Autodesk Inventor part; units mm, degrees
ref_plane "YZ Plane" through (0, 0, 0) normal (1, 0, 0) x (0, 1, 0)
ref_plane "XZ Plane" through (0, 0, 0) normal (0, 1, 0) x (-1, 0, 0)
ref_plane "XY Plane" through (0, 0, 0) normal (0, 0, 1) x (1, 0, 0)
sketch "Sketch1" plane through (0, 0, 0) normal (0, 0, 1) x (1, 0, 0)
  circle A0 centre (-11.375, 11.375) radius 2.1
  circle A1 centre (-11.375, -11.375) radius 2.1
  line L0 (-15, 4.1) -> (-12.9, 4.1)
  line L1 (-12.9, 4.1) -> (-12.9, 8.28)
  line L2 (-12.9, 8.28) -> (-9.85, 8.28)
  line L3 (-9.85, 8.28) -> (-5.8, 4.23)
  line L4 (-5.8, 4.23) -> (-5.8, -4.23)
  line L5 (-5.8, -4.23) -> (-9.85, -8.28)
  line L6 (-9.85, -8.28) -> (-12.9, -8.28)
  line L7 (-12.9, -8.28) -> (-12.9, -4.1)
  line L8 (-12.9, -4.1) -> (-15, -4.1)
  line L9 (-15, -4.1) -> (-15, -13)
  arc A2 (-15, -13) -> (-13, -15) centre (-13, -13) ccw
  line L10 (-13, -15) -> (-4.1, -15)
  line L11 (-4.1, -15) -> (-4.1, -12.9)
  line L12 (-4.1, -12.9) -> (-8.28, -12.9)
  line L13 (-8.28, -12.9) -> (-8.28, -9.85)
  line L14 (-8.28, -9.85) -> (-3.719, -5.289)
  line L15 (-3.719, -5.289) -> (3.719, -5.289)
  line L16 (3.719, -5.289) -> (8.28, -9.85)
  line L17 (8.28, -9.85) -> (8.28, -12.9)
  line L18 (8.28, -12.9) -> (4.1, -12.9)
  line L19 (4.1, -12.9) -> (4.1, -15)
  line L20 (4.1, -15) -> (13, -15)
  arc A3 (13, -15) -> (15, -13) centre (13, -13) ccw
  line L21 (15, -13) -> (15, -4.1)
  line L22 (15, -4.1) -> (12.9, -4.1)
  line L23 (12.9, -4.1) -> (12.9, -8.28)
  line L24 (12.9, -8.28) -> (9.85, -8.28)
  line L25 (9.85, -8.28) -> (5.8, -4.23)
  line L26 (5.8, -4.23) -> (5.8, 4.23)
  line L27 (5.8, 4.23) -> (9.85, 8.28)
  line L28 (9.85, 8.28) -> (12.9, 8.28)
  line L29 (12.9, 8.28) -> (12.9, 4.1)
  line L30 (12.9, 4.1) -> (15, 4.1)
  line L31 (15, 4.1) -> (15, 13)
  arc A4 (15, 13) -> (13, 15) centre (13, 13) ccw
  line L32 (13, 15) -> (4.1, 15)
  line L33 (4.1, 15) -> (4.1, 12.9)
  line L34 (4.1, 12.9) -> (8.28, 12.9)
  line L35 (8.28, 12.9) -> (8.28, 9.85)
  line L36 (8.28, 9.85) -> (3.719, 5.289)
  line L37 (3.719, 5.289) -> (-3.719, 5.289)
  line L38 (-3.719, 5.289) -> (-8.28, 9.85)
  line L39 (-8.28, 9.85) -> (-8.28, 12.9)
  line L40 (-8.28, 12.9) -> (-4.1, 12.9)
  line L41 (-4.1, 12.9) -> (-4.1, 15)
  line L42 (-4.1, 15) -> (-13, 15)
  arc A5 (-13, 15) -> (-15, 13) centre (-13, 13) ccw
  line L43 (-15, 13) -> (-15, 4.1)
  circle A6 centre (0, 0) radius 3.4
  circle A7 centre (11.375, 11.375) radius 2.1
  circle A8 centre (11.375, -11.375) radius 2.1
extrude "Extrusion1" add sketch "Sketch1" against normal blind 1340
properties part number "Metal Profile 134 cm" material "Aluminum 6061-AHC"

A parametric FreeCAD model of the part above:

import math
import FreeCAD as App
import Part
import Sketcher

doc = App.newDocument("Part")
params = doc.addObject("Spreadsheet::Sheet", "Params")
for row, (alias, value) in enumerate([
    ("sketch1_radius", "2 mm"),
    ("sketch1_diameter", "4.2 mm"),
    ("sketch1_diameter2", "6.8 mm"),
    ("sketch1_width", "2.1 mm"),
    ("sketch1_width2", "8.9 mm"),
    ("pad1_length", "1340 mm"),
], start=1):
    params.set(f"A{row}", alias)
    params.set(f"B{row}", "=" + value)
    params.setAlias(f"B{row}", alias)

body = doc.addObject("PartDesign::Body", "Body")

# Sketch on XY plane
sketch1 = body.newObject("Sketcher::SketchObject", "Sketch")
sketch1.AttachmentSupport = (doc.getObject("XY_Plane"), [""])
sketch1.MapMode = "FlatFace"
sketch1.addGeometry([
    Part.LineSegment(App.Vector(-15, 13, 0), App.Vector(-15, 4.1, 0)),  # 0
    Part.LineSegment(App.Vector(-15, 4.1, 0), App.Vector(-12.9, 4.1, 0)),  # 1
    Part.LineSegment(App.Vector(-12.9, 4.1, 0), App.Vector(-12.9, 8.3, 0)),  # 2
    Part.LineSegment(App.Vector(-12.9, 8.3, 0), App.Vector(-9.8, 8.3, 0)),  # 3
    Part.LineSegment(App.Vector(-9.8, 8.3, 0), App.Vector(-5.8, 4.2, 0)),  # 4
    Part.LineSegment(App.Vector(-5.8, 4.2, 0), App.Vector(-5.8, -4.2, 0)),  # 5
    Part.LineSegment(App.Vector(-5.8, -4.2, 0), App.Vector(-9.8, -8.3, 0)),  # 6
    Part.LineSegment(App.Vector(-9.8, -8.3, 0), App.Vector(-12.9, -8.3, 0)),  # 7
    Part.LineSegment(App.Vector(-12.9, -8.3, 0), App.Vector(-12.9, -4.1, 0)),  # 8
    Part.LineSegment(App.Vector(-12.9, -4.1, 0), App.Vector(-15, -4.1, 0)),  # 9
    Part.LineSegment(App.Vector(-15, -4.1, 0), App.Vector(-15, -13, 0)),  # 10
    Part.ArcOfCircle(Part.Circle(App.Vector(-13, -13, 0), App.Vector(0, 0, 1), 2), math.radians(180), math.radians(270)),  # 11
    Part.LineSegment(App.Vector(-13, -15, 0), App.Vector(-4.1, -15, 0)),  # 12
    Part.LineSegment(App.Vector(-4.1, -15, 0), App.Vector(-4.1, -12.9, 0)),  # 13
    Part.LineSegment(App.Vector(-4.1, -12.9, 0), App.Vector(-8.3, -12.9, 0)),  # 14
    Part.LineSegment(App.Vector(-8.3, -12.9, 0), App.Vector(-8.3, -9.8, 0)),  # 15
    Part.LineSegment(App.Vector(-8.3, -9.8, 0), App.Vector(-3.7, -5.3, 0)),  # 16
    Part.LineSegment(App.Vector(-3.7, -5.3, 0), App.Vector(3.7, -5.3, 0)),  # 17
    Part.LineSegment(App.Vector(3.7, -5.3, 0), App.Vector(8.3, -9.8, 0)),  # 18
    Part.LineSegment(App.Vector(8.3, -9.8, 0), App.Vector(8.3, -12.9, 0)),  # 19
    Part.LineSegment(App.Vector(8.3, -12.9, 0), App.Vector(4.1, -12.9, 0)),  # 20
    Part.LineSegment(App.Vector(4.1, -12.9, 0), App.Vector(4.1, -15, 0)),  # 21
    Part.LineSegment(App.Vector(4.1, -15, 0), App.Vector(13, -15, 0)),  # 22
    Part.ArcOfCircle(Part.Circle(App.Vector(13, -13, 0), App.Vector(0, 0, 1), 2), math.radians(-90), math.radians(0)),  # 23
    Part.LineSegment(App.Vector(15, -13, 0), App.Vector(15, -4.1, 0)),  # 24
    Part.LineSegment(App.Vector(15, -4.1, 0), App.Vector(12.9, -4.1, 0)),  # 25
    Part.LineSegment(App.Vector(12.9, -4.1, 0), App.Vector(12.9, -8.3, 0)),  # 26
    Part.LineSegment(App.Vector(12.9, -8.3, 0), App.Vector(9.8, -8.3, 0)),  # 27
    Part.LineSegment(App.Vector(9.8, -8.3, 0), App.Vector(5.8, -4.2, 0)),  # 28
    Part.LineSegment(App.Vector(5.8, -4.2, 0), App.Vector(5.8, 4.2, 0)),  # 29
    Part.LineSegment(App.Vector(5.8, 4.2, 0), App.Vector(9.8, 8.3, 0)),  # 30
    Part.LineSegment(App.Vector(9.8, 8.3, 0), App.Vector(12.9, 8.3, 0)),  # 31
    Part.LineSegment(App.Vector(12.9, 8.3, 0), App.Vector(12.9, 4.1, 0)),  # 32
    Part.LineSegment(App.Vector(12.9, 4.1, 0), App.Vector(15, 4.1, 0)),  # 33
    Part.LineSegment(App.Vector(15, 4.1, 0), App.Vector(15, 13, 0)),  # 34
    Part.ArcOfCircle(Part.Circle(App.Vector(13, 13, 0), App.Vector(0, 0, 1), 2), math.radians(0), math.radians(90)),  # 35
    Part.LineSegment(App.Vector(13, 15, 0), App.Vector(4.1, 15, 0)),  # 36
    Part.LineSegment(App.Vector(4.1, 15, 0), App.Vector(4.1, 12.9, 0)),  # 37
    Part.LineSegment(App.Vector(4.1, 12.9, 0), App.Vector(8.3, 12.9, 0)),  # 38
    Part.LineSegment(App.Vector(8.3, 12.9, 0), App.Vector(8.3, 9.8, 0)),  # 39
    Part.LineSegment(App.Vector(8.3, 9.8, 0), App.Vector(3.7, 5.3, 0)),  # 40
    Part.LineSegment(App.Vector(3.7, 5.3, 0), App.Vector(-3.7, 5.3, 0)),  # 41
    Part.LineSegment(App.Vector(-3.7, 5.3, 0), App.Vector(-8.3, 9.8, 0)),  # 42
    Part.LineSegment(App.Vector(-8.3, 9.8, 0), App.Vector(-8.3, 12.9, 0)),  # 43
    Part.LineSegment(App.Vector(-8.3, 12.9, 0), App.Vector(-4.1, 12.9, 0)),  # 44
    Part.LineSegment(App.Vector(-4.1, 12.9, 0), App.Vector(-4.1, 15, 0)),  # 45
    Part.LineSegment(App.Vector(-4.1, 15, 0), App.Vector(-13, 15, 0)),  # 46
    Part.ArcOfCircle(Part.Circle(App.Vector(-13, 13, 0), App.Vector(0, 0, 1), 2), math.radians(90), math.radians(180)),  # 47
    Part.Circle(App.Vector(-11.4, -11.4, 0), App.Vector(0, 0, 1), 2.1),  # 48
    Part.Circle(App.Vector(11.4, -11.4, 0), App.Vector(0, 0, 1), 2.1),  # 49
    Part.Circle(App.Vector(-11.4, 11.4, 0), App.Vector(0, 0, 1), 2.1),  # 50
    Part.Circle(App.Vector(0, 0, 0), App.Vector(0, 0, 1), 3.4),  # 51
    Part.Circle(App.Vector(11.4, 11.4, 0), App.Vector(0, 0, 1), 2.1),  # 52
], False)
sketch1.addConstraint([
    Sketcher.Constraint("Coincident", 0, 2, 1, 1),
    Sketcher.Constraint("Coincident", 1, 2, 2, 1),
    Sketcher.Constraint("Coincident", 2, 2, 3, 1),
    Sketcher.Constraint("Coincident", 3, 2, 4, 1),
    Sketcher.Constraint("Coincident", 4, 2, 5, 1),
    Sketcher.Constraint("Coincident", 5, 2, 6, 1),
    Sketcher.Constraint("Coincident", 6, 2, 7, 1),
    Sketcher.Constraint("Coincident", 7, 2, 8, 1),
    Sketcher.Constraint("Coincident", 8, 2, 9, 1),
    Sketcher.Constraint("Coincident", 9, 2, 10, 1),
    Sketcher.Constraint("Tangent", 10, 2, 11, 1),
    Sketcher.Constraint("Tangent", 11, 2, 12, 1),
    Sketcher.Constraint("Coincident", 12, 2, 13, 1),
    Sketcher.Constraint("Coincident", 13, 2, 14, 1),
    Sketcher.Constraint("Coincident", 14, 2, 15, 1),
    Sketcher.Constraint("Coincident", 15, 2, 16, 1),
    Sketcher.Constraint("Coincident", 16, 2, 17, 1),
    Sketcher.Constraint("Coincident", 17, 2, 18, 1),
    Sketcher.Constraint("Coincident", 18, 2, 19, 1),
    Sketcher.Constraint("Coincident", 19, 2, 20, 1),
    Sketcher.Constraint("Coincident", 20, 2, 21, 1),
    Sketcher.Constraint("Coincident", 21, 2, 22, 1),
    Sketcher.Constraint("Tangent", 22, 2, 23, 1),
    Sketcher.Constraint("Tangent", 23, 2, 24, 1),
    Sketcher.Constraint("Coincident", 24, 2, 25, 1),
    Sketcher.Constraint("Coincident", 25, 2, 26, 1),
    Sketcher.Constraint("Coincident", 26, 2, 27, 1),
    Sketcher.Constraint("Coincident", 27, 2, 28, 1),
    Sketcher.Constraint("Coincident", 28, 2, 29, 1),
    Sketcher.Constraint("Coincident", 29, 2, 30, 1),
    Sketcher.Constraint("Coincident", 30, 2, 31, 1),
    Sketcher.Constraint("Coincident", 31, 2, 32, 1),
    Sketcher.Constraint("Coincident", 32, 2, 33, 1),
    Sketcher.Constraint("Coincident", 33, 2, 34, 1),
    Sketcher.Constraint("Tangent", 34, 2, 35, 1),
    Sketcher.Constraint("Tangent", 35, 2, 36, 1),
    Sketcher.Constraint("Coincident", 36, 2, 37, 1),
    Sketcher.Constraint("Coincident", 37, 2, 38, 1),
    Sketcher.Constraint("Coincident", 38, 2, 39, 1),
    Sketcher.Constraint("Coincident", 39, 2, 40, 1),
    Sketcher.Constraint("Coincident", 40, 2, 41, 1),
    Sketcher.Constraint("Coincident", 41, 2, 42, 1),
    Sketcher.Constraint("Coincident", 42, 2, 43, 1),
    Sketcher.Constraint("Coincident", 43, 2, 44, 1),
    Sketcher.Constraint("Coincident", 44, 2, 45, 1),
    Sketcher.Constraint("Coincident", 45, 2, 46, 1),
    Sketcher.Constraint("Tangent", 46, 2, 47, 1),
    Sketcher.Constraint("Tangent", 47, 2, 0, 1),
    Sketcher.Constraint("Vertical", 0),
    Sketcher.Constraint("Horizontal", 1),
    Sketcher.Constraint("Vertical", 2),
    Sketcher.Constraint("Horizontal", 3),
    Sketcher.Constraint("Vertical", 5),
    Sketcher.Constraint("Horizontal", 7),
    Sketcher.Constraint("Vertical", 8),
    Sketcher.Constraint("Horizontal", 9),
    Sketcher.Constraint("Vertical", 10),
    Sketcher.Constraint("Horizontal", 12),
    Sketcher.Constraint("Vertical", 13),
    Sketcher.Constraint("Horizontal", 14),
    Sketcher.Constraint("Vertical", 15),
    Sketcher.Constraint("Horizontal", 17),
    Sketcher.Constraint("Vertical", 19),
    Sketcher.Constraint("Horizontal", 20),
    Sketcher.Constraint("Vertical", 21),
    Sketcher.Constraint("Horizontal", 22),
    Sketcher.Constraint("Vertical", 24),
    Sketcher.Constraint("Horizontal", 25),
    Sketcher.Constraint("Vertical", 26),
    Sketcher.Constraint("Horizontal", 27),
    Sketcher.Constraint("Vertical", 29),
    Sketcher.Constraint("Horizontal", 31),
    Sketcher.Constraint("Vertical", 32),
    Sketcher.Constraint("Horizontal", 33),
    Sketcher.Constraint("Vertical", 34),
    Sketcher.Constraint("Horizontal", 36),
    Sketcher.Constraint("Vertical", 37),
    Sketcher.Constraint("Horizontal", 38),
    Sketcher.Constraint("Vertical", 39),
    Sketcher.Constraint("Horizontal", 41),
    Sketcher.Constraint("Vertical", 43),
    Sketcher.Constraint("Horizontal", 44),
    Sketcher.Constraint("Vertical", 45),
    Sketcher.Constraint("Horizontal", 46),
    Sketcher.Constraint("Coincident", 51, 3, -1, 1),
    Sketcher.Constraint("Equal", 11, 23),
    Sketcher.Constraint("Equal", 23, 35),
    Sketcher.Constraint("Equal", 35, 47),
    Sketcher.Constraint("Equal", 48, 49),
    Sketcher.Constraint("Equal", 49, 50),
    Sketcher.Constraint("Equal", 50, 52),
    Sketcher.Constraint("Symmetric", 11, 3, 35, 3, -1, 1),
    Sketcher.Constraint("Symmetric", 23, 3, 47, 3, -1, 1),
    Sketcher.Constraint("Symmetric", 49, 3, 50, 3, -1, 1),
    Sketcher.Constraint("Symmetric", 48, 3, 52, 3, -1, 1),
    Sketcher.Constraint("Symmetric", 1, 2, 25, 2, -1, 1),
    Sketcher.Constraint("Symmetric", 3, 2, 27, 2, -1, 1),
    Sketcher.Constraint("Symmetric", 4, 2, 28, 2, -1, 1),
    Sketcher.Constraint("Symmetric", 6, 2, 30, 2, -1, 1),
    Sketcher.Constraint("Symmetric", 8, 2, 32, 2, -1, 1),
    Sketcher.Constraint("Symmetric", 13, 2, 37, 2, -1, 1),
    Sketcher.Constraint("Symmetric", 15, 2, 39, 2, -1, 1),
    Sketcher.Constraint("Symmetric", 16, 2, 40, 2, -1, 1),
    Sketcher.Constraint("Symmetric", 18, 2, 42, 2, -1, 1),
    Sketcher.Constraint("Symmetric", 20, 2, 44, 2, -1, 1),
    Sketcher.Constraint("Symmetric", 11, 3, 23, 3, -2),
    Sketcher.Constraint("Symmetric", 48, 3, 49, 3, -2),
    Sketcher.Constraint("Symmetric", 15, 2, 18, 2, -2),
    Sketcher.Constraint("Symmetric", 13, 2, 20, 2, -2),
    Sketcher.Constraint("Symmetric", 8, 2, 25, 2, -2),
    Sketcher.Constraint("Symmetric", 6, 2, 27, 2, -2),
    Sketcher.Constraint("Perpendicular", 4, 6),
    Sketcher.Constraint("Parallel", 6, 16),
    Sketcher.Constraint("Perpendicular", 16, 18),
    Sketcher.Constraint("Perpendicular", 28, 30),
    Sketcher.Constraint("Perpendicular", 40, 42),
    Sketcher.Constraint("Horizontal", 5, 2, 28, 2),
    Sketcher.Constraint("Equal", 46, 0),
    Sketcher.Constraint("Equal", 44, 2),
    Sketcher.Constraint("Equal", 33, 13),
    Sketcher.Constraint("Equal", 31, 15),
    Sketcher.Constraint("Radius", 11, 2.0),
    Sketcher.Constraint("Diameter", 48, 4.2),
    Sketcher.Constraint("Diameter", 51, 6.8),
    Sketcher.Constraint("DistanceX", 1, 1, 1, 2, 2.1),
    Sketcher.Constraint("DistanceX", 12, 1, 12, 2, 8.9),
    Sketcher.Constraint("DistanceX", 11, 3, -1, 1, 13.0),
    Sketcher.Constraint("DistanceY", 11, 3, -1, 1, 13.0),
    Sketcher.Constraint("DistanceX", 3, 1, 3, 2, 3.05),
    Sketcher.Constraint("DistanceX", 14, 2, 14, 1, 4.18),
    Sketcher.Constraint("DistanceY", 5, 2, 5, 1, 8.46),
    Sketcher.Constraint("DistanceX", 17, 1, 17, 2, 7.438),
    Sketcher.Constraint("DistanceX", 48, 3, 49, 3, 22.75),
    Sketcher.Constraint("DistanceY", 48, 3, 50, 3, 22.75),
])
sketch1.setExpression("Constraints[121]", "Params.sketch1_radius")
sketch1.setExpression("Constraints[122]", "Params.sketch1_diameter")
sketch1.setExpression("Constraints[123]", "Params.sketch1_diameter2")
sketch1.setExpression("Constraints[124]", "Params.sketch1_width")
sketch1.setExpression("Constraints[125]", "Params.sketch1_width2")
pad1 = body.newObject("PartDesign::Pad", "Pad")
pad1.Profile = sketch1
pad1.setExpression("Length", "Params.pad1_length")
pad1.Reversed = True

doc.recompute()
